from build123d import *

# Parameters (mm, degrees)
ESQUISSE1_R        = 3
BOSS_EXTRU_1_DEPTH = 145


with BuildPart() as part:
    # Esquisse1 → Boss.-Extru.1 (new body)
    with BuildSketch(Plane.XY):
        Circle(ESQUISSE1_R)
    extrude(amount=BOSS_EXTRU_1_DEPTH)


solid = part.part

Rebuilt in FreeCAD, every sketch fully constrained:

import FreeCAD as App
import Part
import Sketcher
Q = App.Units.Quantity

doc = App.newDocument("Part")
body = doc.addObject("PartDesign::Body", "Body")

# Sketch on XY plane
sketch1 = doc.addObject("Sketcher::SketchObject", "Sketch")
body.addObject(sketch1)
sketch1.AttachmentSupport = (doc.XY_Plane, [""])
sketch1.MapMode = "FlatFace"
sketch1.addGeometry(Part.Circle(App.Vector(0, 0, 0), App.Vector(0, 0, 1), 3), False)
sketch1.addConstraint([
    Sketcher.Constraint("Coincident", 0, 3, -1, 1),
    Sketcher.Constraint("Diameter", 0, Q("6 mm")),
])
pad1 = doc.addObject("PartDesign::Pad", "Pad")
body.addObject(pad1)
pad1.Profile = sketch1
pad1.Length = 145

doc.recompute()
